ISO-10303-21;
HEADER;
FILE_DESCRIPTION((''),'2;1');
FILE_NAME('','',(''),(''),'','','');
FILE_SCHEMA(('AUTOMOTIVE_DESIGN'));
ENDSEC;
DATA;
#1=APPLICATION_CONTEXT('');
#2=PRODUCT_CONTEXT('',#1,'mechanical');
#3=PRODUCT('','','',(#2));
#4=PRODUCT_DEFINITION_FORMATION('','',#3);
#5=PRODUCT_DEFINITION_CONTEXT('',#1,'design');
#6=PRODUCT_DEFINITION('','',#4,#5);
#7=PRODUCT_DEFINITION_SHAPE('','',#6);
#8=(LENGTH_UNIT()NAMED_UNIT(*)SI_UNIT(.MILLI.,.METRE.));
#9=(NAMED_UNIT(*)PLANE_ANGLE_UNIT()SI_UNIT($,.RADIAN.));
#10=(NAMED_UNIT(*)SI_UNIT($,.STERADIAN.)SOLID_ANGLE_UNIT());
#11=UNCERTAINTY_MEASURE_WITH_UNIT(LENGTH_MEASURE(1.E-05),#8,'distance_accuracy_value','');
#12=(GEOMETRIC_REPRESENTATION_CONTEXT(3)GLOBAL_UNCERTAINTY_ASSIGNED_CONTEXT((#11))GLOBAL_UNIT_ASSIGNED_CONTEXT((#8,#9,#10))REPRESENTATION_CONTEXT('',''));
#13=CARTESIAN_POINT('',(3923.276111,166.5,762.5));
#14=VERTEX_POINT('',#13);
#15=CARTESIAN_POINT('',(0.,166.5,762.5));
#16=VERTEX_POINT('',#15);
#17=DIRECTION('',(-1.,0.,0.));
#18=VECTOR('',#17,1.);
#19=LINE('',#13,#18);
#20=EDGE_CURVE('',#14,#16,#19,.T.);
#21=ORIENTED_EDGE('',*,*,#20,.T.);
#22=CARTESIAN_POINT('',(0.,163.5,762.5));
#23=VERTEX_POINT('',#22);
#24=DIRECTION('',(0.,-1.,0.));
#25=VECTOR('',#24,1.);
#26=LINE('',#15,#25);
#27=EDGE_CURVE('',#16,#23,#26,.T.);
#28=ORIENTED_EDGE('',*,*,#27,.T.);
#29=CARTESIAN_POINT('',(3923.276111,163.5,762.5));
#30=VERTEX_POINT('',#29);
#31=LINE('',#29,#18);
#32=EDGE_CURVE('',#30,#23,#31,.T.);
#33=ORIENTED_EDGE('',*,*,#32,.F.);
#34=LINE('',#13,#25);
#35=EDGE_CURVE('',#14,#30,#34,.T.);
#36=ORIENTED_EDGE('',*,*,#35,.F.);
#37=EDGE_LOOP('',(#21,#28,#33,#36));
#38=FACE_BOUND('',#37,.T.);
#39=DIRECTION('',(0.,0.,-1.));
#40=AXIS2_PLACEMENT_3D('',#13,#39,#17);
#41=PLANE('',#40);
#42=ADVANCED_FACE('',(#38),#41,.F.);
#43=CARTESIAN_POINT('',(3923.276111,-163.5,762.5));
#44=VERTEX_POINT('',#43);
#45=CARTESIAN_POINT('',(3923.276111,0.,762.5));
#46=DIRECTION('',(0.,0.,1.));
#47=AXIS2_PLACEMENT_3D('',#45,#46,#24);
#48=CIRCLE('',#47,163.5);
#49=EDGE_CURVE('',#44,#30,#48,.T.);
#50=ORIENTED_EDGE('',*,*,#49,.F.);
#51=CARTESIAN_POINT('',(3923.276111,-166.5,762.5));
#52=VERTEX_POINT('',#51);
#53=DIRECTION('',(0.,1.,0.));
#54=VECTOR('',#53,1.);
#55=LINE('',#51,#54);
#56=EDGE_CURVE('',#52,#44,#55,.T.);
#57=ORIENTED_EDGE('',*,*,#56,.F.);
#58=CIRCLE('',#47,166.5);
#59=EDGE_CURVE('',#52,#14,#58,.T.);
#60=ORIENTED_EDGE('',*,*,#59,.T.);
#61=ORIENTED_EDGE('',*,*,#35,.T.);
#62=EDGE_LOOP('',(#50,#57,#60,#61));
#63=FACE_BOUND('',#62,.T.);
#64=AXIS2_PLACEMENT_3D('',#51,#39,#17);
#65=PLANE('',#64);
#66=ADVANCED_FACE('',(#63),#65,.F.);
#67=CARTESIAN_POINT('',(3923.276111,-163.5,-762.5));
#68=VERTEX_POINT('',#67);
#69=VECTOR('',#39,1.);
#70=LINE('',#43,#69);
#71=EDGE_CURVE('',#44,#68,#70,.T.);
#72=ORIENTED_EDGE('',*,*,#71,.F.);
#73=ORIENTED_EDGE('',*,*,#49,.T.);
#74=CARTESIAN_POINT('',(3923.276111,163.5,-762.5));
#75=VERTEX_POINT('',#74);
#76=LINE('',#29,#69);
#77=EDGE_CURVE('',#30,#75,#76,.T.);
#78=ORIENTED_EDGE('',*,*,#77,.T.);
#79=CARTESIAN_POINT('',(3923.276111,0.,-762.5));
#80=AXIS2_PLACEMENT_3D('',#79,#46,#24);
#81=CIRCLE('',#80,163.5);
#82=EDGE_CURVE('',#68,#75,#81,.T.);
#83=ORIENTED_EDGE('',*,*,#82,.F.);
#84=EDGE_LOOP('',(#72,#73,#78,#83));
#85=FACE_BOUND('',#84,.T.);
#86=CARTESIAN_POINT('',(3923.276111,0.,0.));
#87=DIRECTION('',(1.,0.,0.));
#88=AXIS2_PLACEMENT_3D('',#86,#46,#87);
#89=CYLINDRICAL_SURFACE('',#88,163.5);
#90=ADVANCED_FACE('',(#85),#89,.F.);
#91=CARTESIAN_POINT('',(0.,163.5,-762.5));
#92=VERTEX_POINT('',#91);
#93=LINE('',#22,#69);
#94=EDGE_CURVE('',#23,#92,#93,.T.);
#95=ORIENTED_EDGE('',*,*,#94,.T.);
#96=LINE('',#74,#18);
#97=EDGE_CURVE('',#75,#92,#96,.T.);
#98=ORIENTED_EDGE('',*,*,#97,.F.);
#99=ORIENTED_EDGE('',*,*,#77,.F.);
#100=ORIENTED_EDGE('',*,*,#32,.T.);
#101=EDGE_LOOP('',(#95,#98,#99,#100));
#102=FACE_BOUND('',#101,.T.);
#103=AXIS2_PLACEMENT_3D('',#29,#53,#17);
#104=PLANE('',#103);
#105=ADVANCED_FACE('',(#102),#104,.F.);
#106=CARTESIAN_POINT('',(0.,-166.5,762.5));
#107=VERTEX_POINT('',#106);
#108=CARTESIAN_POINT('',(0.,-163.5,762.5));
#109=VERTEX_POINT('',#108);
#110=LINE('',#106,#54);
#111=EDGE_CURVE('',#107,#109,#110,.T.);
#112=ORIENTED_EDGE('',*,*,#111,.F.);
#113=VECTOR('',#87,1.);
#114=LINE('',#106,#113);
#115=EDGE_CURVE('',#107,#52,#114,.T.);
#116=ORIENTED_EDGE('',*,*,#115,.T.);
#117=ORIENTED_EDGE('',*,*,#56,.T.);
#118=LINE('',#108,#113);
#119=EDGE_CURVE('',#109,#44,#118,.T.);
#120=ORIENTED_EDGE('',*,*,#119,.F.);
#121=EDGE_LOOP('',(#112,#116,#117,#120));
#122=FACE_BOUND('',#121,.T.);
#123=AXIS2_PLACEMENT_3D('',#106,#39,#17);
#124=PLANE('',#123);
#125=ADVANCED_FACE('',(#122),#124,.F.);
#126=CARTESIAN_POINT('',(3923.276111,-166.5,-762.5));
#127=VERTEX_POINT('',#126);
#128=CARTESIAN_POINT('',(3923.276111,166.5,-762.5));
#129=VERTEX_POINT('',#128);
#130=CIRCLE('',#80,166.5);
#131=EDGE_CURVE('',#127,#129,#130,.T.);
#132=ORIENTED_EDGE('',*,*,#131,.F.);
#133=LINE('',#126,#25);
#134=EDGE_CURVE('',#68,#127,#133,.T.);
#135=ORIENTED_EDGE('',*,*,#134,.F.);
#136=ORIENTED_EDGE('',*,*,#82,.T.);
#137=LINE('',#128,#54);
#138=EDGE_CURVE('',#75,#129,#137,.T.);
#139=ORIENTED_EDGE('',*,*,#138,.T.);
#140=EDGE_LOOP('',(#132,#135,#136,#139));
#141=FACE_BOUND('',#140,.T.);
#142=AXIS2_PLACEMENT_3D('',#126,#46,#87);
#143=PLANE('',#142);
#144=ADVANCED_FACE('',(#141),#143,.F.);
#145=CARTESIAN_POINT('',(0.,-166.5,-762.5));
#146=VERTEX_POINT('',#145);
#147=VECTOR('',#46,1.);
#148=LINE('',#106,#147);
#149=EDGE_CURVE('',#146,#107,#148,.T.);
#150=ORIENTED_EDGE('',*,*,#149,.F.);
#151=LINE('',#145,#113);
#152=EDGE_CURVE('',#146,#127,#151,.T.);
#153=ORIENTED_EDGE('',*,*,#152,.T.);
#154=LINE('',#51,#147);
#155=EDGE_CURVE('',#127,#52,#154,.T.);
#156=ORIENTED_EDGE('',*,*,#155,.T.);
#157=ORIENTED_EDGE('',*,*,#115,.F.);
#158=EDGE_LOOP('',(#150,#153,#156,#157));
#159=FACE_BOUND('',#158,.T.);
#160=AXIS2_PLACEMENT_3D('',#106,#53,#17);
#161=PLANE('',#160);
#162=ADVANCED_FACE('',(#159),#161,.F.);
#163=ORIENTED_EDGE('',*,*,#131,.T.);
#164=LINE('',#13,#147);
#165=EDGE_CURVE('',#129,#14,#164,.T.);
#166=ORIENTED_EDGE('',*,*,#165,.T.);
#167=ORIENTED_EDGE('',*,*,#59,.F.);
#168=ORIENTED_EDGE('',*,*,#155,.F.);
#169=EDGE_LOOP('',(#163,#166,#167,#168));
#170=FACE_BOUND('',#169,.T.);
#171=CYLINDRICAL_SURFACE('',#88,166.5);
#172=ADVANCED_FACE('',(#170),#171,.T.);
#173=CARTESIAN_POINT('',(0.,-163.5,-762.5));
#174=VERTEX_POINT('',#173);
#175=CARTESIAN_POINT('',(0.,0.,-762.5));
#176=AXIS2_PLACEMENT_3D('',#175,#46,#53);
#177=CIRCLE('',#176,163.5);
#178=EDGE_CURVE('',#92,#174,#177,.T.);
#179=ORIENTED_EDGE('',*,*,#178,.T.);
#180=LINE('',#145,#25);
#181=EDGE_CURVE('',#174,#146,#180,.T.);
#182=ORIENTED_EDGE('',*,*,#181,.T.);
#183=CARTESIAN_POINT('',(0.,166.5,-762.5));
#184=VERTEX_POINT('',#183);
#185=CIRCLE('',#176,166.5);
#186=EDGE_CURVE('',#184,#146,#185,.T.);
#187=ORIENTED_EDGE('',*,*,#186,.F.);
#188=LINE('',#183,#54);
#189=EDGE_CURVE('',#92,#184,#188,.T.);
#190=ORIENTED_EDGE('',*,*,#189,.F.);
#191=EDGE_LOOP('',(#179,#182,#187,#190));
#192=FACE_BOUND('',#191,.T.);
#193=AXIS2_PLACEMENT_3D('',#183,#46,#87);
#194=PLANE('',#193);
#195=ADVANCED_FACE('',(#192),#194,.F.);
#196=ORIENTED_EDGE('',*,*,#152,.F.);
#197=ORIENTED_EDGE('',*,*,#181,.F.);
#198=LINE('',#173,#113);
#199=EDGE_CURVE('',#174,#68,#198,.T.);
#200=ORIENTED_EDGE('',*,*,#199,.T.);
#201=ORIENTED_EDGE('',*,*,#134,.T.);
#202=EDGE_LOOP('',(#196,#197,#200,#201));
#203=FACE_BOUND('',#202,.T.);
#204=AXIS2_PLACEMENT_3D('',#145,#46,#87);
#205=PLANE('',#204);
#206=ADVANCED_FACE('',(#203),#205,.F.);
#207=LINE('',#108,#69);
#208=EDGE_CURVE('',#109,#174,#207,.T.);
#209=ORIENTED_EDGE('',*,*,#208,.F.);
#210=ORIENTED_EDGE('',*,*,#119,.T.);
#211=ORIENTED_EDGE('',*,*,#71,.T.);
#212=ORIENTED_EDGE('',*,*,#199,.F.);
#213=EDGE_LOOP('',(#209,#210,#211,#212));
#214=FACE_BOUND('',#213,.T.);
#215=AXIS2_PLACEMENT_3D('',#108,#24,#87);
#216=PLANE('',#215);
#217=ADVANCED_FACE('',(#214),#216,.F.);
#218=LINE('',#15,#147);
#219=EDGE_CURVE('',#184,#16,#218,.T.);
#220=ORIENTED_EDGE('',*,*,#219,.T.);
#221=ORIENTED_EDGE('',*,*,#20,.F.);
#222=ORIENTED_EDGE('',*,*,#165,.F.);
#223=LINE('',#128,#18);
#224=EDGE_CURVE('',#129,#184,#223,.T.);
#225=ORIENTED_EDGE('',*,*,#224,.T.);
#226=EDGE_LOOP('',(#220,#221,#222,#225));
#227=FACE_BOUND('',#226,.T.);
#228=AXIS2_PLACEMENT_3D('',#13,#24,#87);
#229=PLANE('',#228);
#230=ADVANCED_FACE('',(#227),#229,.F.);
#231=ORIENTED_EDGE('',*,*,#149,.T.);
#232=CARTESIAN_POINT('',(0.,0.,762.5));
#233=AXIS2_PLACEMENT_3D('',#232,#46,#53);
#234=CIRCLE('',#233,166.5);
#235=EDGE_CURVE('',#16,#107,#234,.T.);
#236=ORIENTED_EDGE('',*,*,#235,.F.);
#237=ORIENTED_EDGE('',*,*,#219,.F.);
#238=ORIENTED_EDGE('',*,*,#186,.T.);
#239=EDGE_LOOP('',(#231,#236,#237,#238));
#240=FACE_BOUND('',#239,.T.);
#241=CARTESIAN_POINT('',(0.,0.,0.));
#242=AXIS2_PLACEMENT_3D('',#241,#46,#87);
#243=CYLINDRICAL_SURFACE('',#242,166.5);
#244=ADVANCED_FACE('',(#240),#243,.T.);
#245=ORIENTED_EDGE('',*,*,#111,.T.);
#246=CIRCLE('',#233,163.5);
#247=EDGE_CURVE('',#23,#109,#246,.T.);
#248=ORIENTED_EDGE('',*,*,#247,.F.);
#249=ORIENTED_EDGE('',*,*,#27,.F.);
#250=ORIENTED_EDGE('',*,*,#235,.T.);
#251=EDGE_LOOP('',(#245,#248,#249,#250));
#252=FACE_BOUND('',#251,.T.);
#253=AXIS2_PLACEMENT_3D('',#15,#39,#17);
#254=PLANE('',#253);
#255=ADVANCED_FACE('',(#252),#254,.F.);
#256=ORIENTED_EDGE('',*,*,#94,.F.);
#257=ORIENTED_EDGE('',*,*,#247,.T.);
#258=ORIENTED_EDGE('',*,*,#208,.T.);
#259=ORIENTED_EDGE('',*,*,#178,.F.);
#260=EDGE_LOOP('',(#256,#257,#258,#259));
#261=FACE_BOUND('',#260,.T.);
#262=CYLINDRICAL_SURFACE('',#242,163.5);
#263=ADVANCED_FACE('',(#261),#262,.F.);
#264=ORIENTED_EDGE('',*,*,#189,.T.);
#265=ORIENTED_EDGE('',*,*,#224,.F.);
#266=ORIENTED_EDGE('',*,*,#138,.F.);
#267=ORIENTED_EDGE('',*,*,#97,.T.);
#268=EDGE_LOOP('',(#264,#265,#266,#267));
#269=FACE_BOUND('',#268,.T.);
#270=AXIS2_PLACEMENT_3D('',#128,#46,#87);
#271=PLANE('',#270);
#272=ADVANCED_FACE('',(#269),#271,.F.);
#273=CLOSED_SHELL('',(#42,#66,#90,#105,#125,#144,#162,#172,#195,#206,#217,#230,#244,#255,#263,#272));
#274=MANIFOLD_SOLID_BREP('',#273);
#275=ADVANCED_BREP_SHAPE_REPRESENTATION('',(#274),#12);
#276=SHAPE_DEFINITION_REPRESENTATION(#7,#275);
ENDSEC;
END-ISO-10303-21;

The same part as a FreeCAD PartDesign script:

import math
import FreeCAD as App
import Part
import Sketcher

V = App.Vector


def add_polygon(sketch, points):
    """Adds a closed chain of lines whose ends are joined by coincident constraints."""
    first, n = sketch.GeometryCount, len(points)
    for a, b in zip(points, points[1:] + points[:1]):
        sketch.addGeometry(Part.LineSegment(App.Vector(*a, 0), App.Vector(*b, 0)), False)
    for i in range(n):
        sketch.addConstraint(Sketcher.Constraint("Coincident", first + i, 2, first + (i + 1) % n, 1))

doc = App.newDocument("Part")
body = doc.addObject("PartDesign::Body", "Body")

# Sketch on YZ plane
sketch1 = doc.addObject("Sketcher::SketchObject", "Sketch")
body.addObject(sketch1)
sketch1.AttachmentSupport = (doc.YZ_Plane, [""])
sketch1.MapMode = "FlatFace"
add_polygon(sketch1, [(166.5, 762.5), (163.5, 762.5), (163.5, -762.5), (166.5, -762.5)])  # lines 0-3
sketch1.addConstraint(Sketcher.Constraint("Horizontal", 0))
sketch1.addConstraint(Sketcher.Constraint("Vertical", 1))
sketch1.addConstraint(Sketcher.Constraint("Horizontal", 2))
sketch1.addConstraint(Sketcher.Constraint("Vertical", 3))
sketch1.addConstraint(Sketcher.Constraint("DistanceX", 0, 2, 0, 1, 3.0))
sketch1.addConstraint(Sketcher.Constraint("DistanceY", 1, 2, 1, 1, 1525.0))
sketch1.addConstraint(Sketcher.Constraint("DistanceX", -1, 1, 0, 2, 163.5))
sketch1.addConstraint(Sketcher.Constraint("DistanceY", -1, 1, 0, 2, 762.5))

# Sketch on XY plane
sketch2 = doc.addObject("Sketcher::SketchObject", "Sketch001")
body.addObject(sketch2)
sketch2.AttachmentSupport = (doc.XY_Plane, [""])
sketch2.MapMode = "FlatFace"
sketch2.addGeometry(Part.LineSegment(V(0, 165, 0), V(3923, 165, 0)), False)
sketch2.addGeometry(Part.ArcOfCircle(Part.Circle(V(3923, 0, 0), V(0, 0, 1), 165), math.radians(-90), math.radians(90)), False)
sketch2.addGeometry(Part.LineSegment(V(3923, -165, 0), V(0, -165, 0)), False)
sketch2.addGeometry(Part.ArcOfCircle(Part.Circle(V(0, 0, 0), V(0, 0, 1), 165), math.radians(90), math.radians(270)), False)
sketch2.addConstraint(Sketcher.Constraint("Tangent", 0, 2, 1, 2))
sketch2.addConstraint(Sketcher.Constraint("Tangent", 1, 1, 2, 1))
sketch2.addConstraint(Sketcher.Constraint("Tangent", 2, 2, 3, 2))
sketch2.addConstraint(Sketcher.Constraint("Tangent", 3, 1, 0, 1))
sketch2.addConstraint(Sketcher.Constraint("Horizontal", 0))
sketch2.addConstraint(Sketcher.Constraint("Horizontal", 2))
sketch2.addConstraint(Sketcher.Constraint("Coincident", 3, 3, -1, 1))
sketch2.addConstraint(Sketcher.Constraint("Radius", 1, 165.0))
sketch2.addConstraint(Sketcher.Constraint("DistanceX", 0, 1, 0, 2, 3923.276111))
doc.recompute()

additivepipe = doc.addObject("PartDesign::AdditivePipe", "AdditivePipe")
body.addObject(additivepipe)
additivepipe.Profile = sketch1
additivepipe.Spine = (sketch2, ["Edge1", "Edge2", "Edge3", "Edge4"])

doc.recompute()
